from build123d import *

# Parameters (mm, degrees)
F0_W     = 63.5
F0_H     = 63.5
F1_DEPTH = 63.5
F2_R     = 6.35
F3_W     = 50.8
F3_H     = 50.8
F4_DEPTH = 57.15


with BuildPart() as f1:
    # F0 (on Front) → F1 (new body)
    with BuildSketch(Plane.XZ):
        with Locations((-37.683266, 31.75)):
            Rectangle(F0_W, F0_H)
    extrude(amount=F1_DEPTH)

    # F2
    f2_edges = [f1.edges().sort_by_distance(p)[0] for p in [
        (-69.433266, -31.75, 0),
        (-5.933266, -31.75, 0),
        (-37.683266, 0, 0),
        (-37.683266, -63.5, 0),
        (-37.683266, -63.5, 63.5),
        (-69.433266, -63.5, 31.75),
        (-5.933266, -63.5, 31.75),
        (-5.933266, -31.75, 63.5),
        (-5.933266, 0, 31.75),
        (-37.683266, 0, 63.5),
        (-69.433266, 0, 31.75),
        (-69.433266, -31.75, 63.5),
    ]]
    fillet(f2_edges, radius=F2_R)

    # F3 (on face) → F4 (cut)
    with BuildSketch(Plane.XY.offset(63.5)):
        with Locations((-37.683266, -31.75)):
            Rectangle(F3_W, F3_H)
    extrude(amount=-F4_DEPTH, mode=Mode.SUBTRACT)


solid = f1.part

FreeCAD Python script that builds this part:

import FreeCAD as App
import Part
import Sketcher
from FreeCAD import Vector
Q = App.Units.Quantity

doc = App.newDocument("Part")
body = doc.addObject("PartDesign::Body", "Body")

# Sketch on XZ plane
sketch1 = doc.addObject("Sketcher::SketchObject", "Sketch")
body.addObject(sketch1)
sketch1.AttachmentSupport = (doc.XZ_Plane, [""])
sketch1.MapMode = "FlatFace"
sketch1.addGeometry(Part.LineSegment(Vector(-69.433266, 63.5, 0), Vector(-69.433266, 0, 0)), False)
sketch1.addGeometry(Part.LineSegment(Vector(-69.433266, 0, 0), Vector(-5.933266, 0, 0)), False)
sketch1.addGeometry(Part.LineSegment(Vector(-5.933266, 0, 0), Vector(-5.933266, 63.5, 0)), False)
sketch1.addGeometry(Part.LineSegment(Vector(-5.933266, 63.5, 0), Vector(-69.433266, 63.5, 0)), False)
sketch1.addConstraint(Sketcher.Constraint("Coincident", 0, 2, 1, 1))
sketch1.addConstraint(Sketcher.Constraint("Coincident", 1, 2, 2, 1))
sketch1.addConstraint(Sketcher.Constraint("Coincident", 2, 2, 3, 1))
sketch1.addConstraint(Sketcher.Constraint("Coincident", 3, 2, 0, 1))
sketch1.addConstraint(Sketcher.Constraint("Vertical", 0))
sketch1.addConstraint(Sketcher.Constraint("Horizontal", 1))
sketch1.addConstraint(Sketcher.Constraint("Vertical", 2))
sketch1.addConstraint(Sketcher.Constraint("Horizontal", 3))
sketch1.addConstraint(Sketcher.Constraint("PointOnObject", 0, 2, -1))
sketch1.addConstraint(Sketcher.Constraint("Equal", 3, 0))
sketch1.addConstraint(Sketcher.Constraint("DistanceX", 1, 1, 1, 2, Q("2.5 in")))
sketch1.addConstraint(Sketcher.Constraint("DistanceX", 0, 2, -1, 1, Q("69.433266 mm")))
pad1 = doc.addObject("PartDesign::Pad", "Pad")
body.addObject(pad1)
pad1.Profile = sketch1
pad1.Length = Q("2.5 in")
doc.recompute()

fillet = doc.addObject("PartDesign::Fillet", "Fillet")
body.addObject(fillet)
fillet.Base = (pad1, ["Edge1"])
fillet.UseAllEdges = True
fillet.Radius = Q("0.25 in")

# Sketch on XY plane
sketch2 = doc.addObject("Sketcher::SketchObject", "Sketch001")
body.addObject(sketch2)
sketch2.AttachmentSupport = (doc.XY_Plane, [""])
sketch2.MapMode = "FlatFace"
sketch2.AttachmentOffset = App.Placement(Vector(0, 0, 2.5 * 25.4), App.Rotation())
sketch2.addGeometry(Part.LineSegment(Vector(-63.083266, -6.35, 0), Vector(-63.083266, -57.15, 0)), False)
sketch2.addGeometry(Part.LineSegment(Vector(-63.083266, -57.15, 0), Vector(-12.283266, -57.15, 0)), False)
sketch2.addGeometry(Part.LineSegment(Vector(-12.283266, -57.15, 0), Vector(-12.283266, -6.35, 0)), False)
sketch2.addGeometry(Part.LineSegment(Vector(-12.283266, -6.35, 0), Vector(-63.083266, -6.35, 0)), False)
sketch2.addConstraint(Sketcher.Constraint("Coincident", 0, 2, 1, 1))
sketch2.addConstraint(Sketcher.Constraint("Coincident", 1, 2, 2, 1))
sketch2.addConstraint(Sketcher.Constraint("Coincident", 2, 2, 3, 1))
sketch2.addConstraint(Sketcher.Constraint("Coincident", 3, 2, 0, 1))
sketch2.addConstraint(Sketcher.Constraint("Vertical", 0))
sketch2.addConstraint(Sketcher.Constraint("Horizontal", 1))
sketch2.addConstraint(Sketcher.Constraint("Vertical", 2))
sketch2.addConstraint(Sketcher.Constraint("Horizontal", 3))
sketch2.addConstraint(Sketcher.Constraint("Equal", 3, 0))
sketch2.addConstraint(Sketcher.Constraint("DistanceX", 1, 1, 1, 2, Q("2 in")))
sketch2.addConstraint(Sketcher.Constraint("DistanceY", 0, 2, -1, 1, Q("2.25 in")))
sketch2.addConstraint(Sketcher.Constraint("DistanceX", 0, 2, -1, 1, Q("63.083266 mm")))
pocket1 = doc.addObject("PartDesign::Pocket", "Pocket")
body.addObject(pocket1)
pocket1.Profile = sketch2
pocket1.Length = Q("2.25 in")

doc.recompute()
